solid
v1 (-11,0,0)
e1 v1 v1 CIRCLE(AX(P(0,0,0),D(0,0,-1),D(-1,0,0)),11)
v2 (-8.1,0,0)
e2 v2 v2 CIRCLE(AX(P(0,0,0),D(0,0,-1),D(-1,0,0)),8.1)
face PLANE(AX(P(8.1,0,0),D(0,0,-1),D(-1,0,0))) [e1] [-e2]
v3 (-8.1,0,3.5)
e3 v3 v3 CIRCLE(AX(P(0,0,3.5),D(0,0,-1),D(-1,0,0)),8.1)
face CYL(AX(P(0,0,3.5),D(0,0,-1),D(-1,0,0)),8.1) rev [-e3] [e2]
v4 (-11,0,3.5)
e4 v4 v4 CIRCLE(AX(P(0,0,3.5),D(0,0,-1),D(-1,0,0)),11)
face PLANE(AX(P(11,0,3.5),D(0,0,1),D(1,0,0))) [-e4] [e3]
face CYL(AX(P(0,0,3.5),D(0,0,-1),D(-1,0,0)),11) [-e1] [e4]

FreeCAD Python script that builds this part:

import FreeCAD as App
import Part
import Sketcher
from FreeCAD import Vector

doc = App.newDocument("Part")
body = doc.addObject("PartDesign::Body", "Body")

# Sketch on XZ plane
sketch1 = body.newObject("Sketcher::SketchObject", "Sketch")
sketch1.AttachmentSupport = (doc.getObject("XZ_Plane"), [""])
sketch1.MapMode = "FlatFace"
sketch1.addGeometry(Part.LineSegment(Vector(8.1, 3.5, 0), Vector(8.1, 0, 0)), False)
sketch1.addGeometry(Part.LineSegment(Vector(8.1, 0, 0), Vector(11, 0, 0)), False)
sketch1.addGeometry(Part.LineSegment(Vector(11, 0, 0), Vector(11, 3.5, 0)), False)
sketch1.addGeometry(Part.LineSegment(Vector(11, 3.5, 0), Vector(8.1, 3.5, 0)), False)
sketch1.addConstraint(Sketcher.Constraint("Coincident", 0, 2, 1, 1))
sketch1.addConstraint(Sketcher.Constraint("Coincident", 1, 2, 2, 1))
sketch1.addConstraint(Sketcher.Constraint("Coincident", 2, 2, 3, 1))
sketch1.addConstraint(Sketcher.Constraint("Coincident", 3, 2, 0, 1))
sketch1.addConstraint(Sketcher.Constraint("Vertical", 0))
sketch1.addConstraint(Sketcher.Constraint("Horizontal", 1))
sketch1.addConstraint(Sketcher.Constraint("Vertical", 2))
sketch1.addConstraint(Sketcher.Constraint("Horizontal", 3))
sketch1.addConstraint(Sketcher.Constraint("PointOnObject", 0, 2, -1))
sketch1.addConstraint(Sketcher.Constraint("DistanceX", 1, 1, 1, 2, 2.9))
sketch1.addConstraint(Sketcher.Constraint("DistanceY", 0, 2, 0, 1, 3.5))
sketch1.addConstraint(Sketcher.Constraint("DistanceX", -1, 1, 1, 2, 11.0))
revolution = body.newObject("PartDesign::Revolution", "Revolution")
revolution.Profile = sketch1
revolution.ReferenceAxis = (sketch1, ["V_Axis"])
revolution.Angle = 360

doc.recompute()
